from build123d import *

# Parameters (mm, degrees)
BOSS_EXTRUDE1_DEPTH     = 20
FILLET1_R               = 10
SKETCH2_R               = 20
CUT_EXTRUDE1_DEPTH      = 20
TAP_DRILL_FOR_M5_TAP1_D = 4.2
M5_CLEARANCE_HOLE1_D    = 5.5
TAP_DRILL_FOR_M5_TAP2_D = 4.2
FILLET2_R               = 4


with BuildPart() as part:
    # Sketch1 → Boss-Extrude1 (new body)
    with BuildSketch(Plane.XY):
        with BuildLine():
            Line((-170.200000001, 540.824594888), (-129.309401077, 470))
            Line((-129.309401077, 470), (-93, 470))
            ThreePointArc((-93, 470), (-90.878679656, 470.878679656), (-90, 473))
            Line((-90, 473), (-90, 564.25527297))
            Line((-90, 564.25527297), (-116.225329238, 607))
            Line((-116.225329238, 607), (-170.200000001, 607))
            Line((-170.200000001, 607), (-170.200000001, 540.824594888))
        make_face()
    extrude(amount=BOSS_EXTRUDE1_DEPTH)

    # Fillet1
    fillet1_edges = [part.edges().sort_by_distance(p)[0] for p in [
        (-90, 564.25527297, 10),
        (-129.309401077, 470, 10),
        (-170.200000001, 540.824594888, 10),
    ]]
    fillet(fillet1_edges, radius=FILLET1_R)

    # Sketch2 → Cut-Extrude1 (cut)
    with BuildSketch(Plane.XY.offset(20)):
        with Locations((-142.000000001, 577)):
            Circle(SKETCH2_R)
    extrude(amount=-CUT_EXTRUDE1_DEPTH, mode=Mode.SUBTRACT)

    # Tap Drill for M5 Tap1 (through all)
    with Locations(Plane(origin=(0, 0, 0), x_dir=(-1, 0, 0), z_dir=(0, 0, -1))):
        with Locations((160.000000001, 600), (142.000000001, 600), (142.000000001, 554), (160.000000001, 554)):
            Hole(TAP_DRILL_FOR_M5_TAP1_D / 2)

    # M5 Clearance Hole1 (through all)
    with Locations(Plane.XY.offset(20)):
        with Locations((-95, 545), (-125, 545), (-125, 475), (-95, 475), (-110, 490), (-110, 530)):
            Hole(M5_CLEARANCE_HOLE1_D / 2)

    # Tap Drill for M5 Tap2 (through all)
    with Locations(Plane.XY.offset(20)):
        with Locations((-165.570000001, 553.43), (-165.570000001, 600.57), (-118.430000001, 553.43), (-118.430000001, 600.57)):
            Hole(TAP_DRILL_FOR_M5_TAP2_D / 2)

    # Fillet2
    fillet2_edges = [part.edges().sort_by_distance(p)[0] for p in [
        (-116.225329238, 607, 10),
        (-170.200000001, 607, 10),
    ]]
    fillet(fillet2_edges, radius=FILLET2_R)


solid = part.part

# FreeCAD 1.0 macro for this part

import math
import FreeCAD as App
import Part
import Sketcher
Q = App.Units.Quantity


def edges_at(feature, points):
    """Names of the edges that pass closest to the given points."""
    edges = feature.Shape.Edges
    near = lambda p: min(range(len(edges)), key=lambda i: edges[i].distToShape(Part.Vertex(*p))[0])
    return sorted({f"Edge{near(p) + 1}" for p in points})

doc = App.newDocument("Part")
params = doc.addObject("Spreadsheet::Sheet", "Params")
for row, (alias, value) in enumerate([
    ("sketch1_radius", "3 mm"),
    ("pad1_length", "20 mm"),
    ("fillet_radius", "10 mm"),
    ("sketch2_diameter", "40 mm"),
    ("pocket1_length", "20 mm"),
    ("sketch3_diameter", "4.2 mm"),
    ("hole_diameter", "4.2 mm"),
    ("sketch4_diameter", "5.5 mm"),
    ("hole2_diameter", "5.5 mm"),
    ("sketch5_diameter", "4.2 mm"),
    ("hole3_diameter", "4.2 mm"),
    ("fillet2_radius", "4 mm"),
], start=1):
    params.set(f"A{row}", alias)
    params.set(f"B{row}", "=" + value)
    params.setAlias(f"B{row}", alias)

body = doc.addObject("PartDesign::Body", "Body")

sketch1 = body.newObject("Sketcher::SketchObject", "Sketch")
sketch1.AttachmentSupport = (doc.getObject("XY_Plane"), [""])
sketch1.MapMode = "FlatFace"
sketch1.addGeometry([
    Part.LineSegment(App.Vector(-170.2, 540.824595, 0), App.Vector(-129.309401, 470, 0)),
    Part.LineSegment(App.Vector(-129.309401, 470, 0), App.Vector(-93, 470, 0)),
    Part.ArcOfCircle(Part.Circle(App.Vector(-93, 473, 0), App.Vector(0, 0, 1), 3), math.radians(-90), math.radians(0)),
    Part.LineSegment(App.Vector(-90, 473, 0), App.Vector(-90, 564.255273, 0)),
    Part.LineSegment(App.Vector(-90, 564.255273, 0), App.Vector(-116.225329, 607, 0)),
    Part.LineSegment(App.Vector(-116.225329, 607, 0), App.Vector(-170.2, 607, 0)),
    Part.LineSegment(App.Vector(-170.2, 607, 0), App.Vector(-170.2, 540.824595, 0)),
], False)
sketch1.addConstraint([
    Sketcher.Constraint("Coincident", 0, 2, 1, 1),
    Sketcher.Constraint("Tangent", 1, 2, 2, 1),
    Sketcher.Constraint("Tangent", 2, 2, 3, 1),
    Sketcher.Constraint("Coincident", 3, 2, 4, 1),
    Sketcher.Constraint("Coincident", 4, 2, 5, 1),
    Sketcher.Constraint("Coincident", 5, 2, 6, 1),
    Sketcher.Constraint("Coincident", 6, 2, 0, 1),
    Sketcher.Constraint("Horizontal", 1),
    Sketcher.Constraint("Vertical", 3),
    Sketcher.Constraint("Horizontal", 5),
    Sketcher.Constraint("Vertical", 6),
    Sketcher.Constraint("Radius", 2, 3.0),
    Sketcher.Constraint("Angle", 0, Q("-60 deg")),
    Sketcher.Constraint("DistanceX", 2, 3, -1, 1, 93.0),
    Sketcher.Constraint("DistanceY", -1, 1, 2, 3, 473.0),
    Sketcher.Constraint("DistanceY", -1, 1, 4, 2, 607.0),
    Sketcher.Constraint("DistanceX", 5, 2, -1, 1, 170.2),
    Sketcher.Constraint("DistanceX", 1, 1, 1, 2, 36.309401),
    Sketcher.Constraint("DistanceX", 5, 2, 5, 1, 53.974671),
    Sketcher.Constraint("DistanceY", 3, 1, 3, 2, 91.255273),
])
sketch1.setExpression("Constraints[11]", "Params.sketch1_radius")
pad1 = body.newObject("PartDesign::Pad", "Pad")
pad1.Profile = sketch1
pad1.setExpression("Length", "Params.pad1_length")
doc.recompute()

fillet = body.newObject("PartDesign::Fillet", "Fillet")
fillet.Base = (pad1, edges_at(pad1, [(-90, 564.255, 10), (-129.309, 470, 10), (-170.2, 540.825, 10)]))
fillet.setExpression("Radius", "Params.fillet_radius")

sketch2 = body.newObject("Sketcher::SketchObject", "Sketch001")
sketch2.AttachmentSupport = (doc.getObject("XY_Plane"), [""])
sketch2.MapMode = "FlatFace"
sketch2.AttachmentOffset = App.Placement(App.Vector(0, 0, 20), App.Rotation())
sketch2.addGeometry(Part.Circle(App.Vector(-142, 577, 0), App.Vector(0, 0, 1), 20), False)
sketch2.addConstraint([
    Sketcher.Constraint("Diameter", 0, 40.0),
    Sketcher.Constraint("DistanceX", 0, 3, -1, 1, 142.0),
    Sketcher.Constraint("DistanceY", -1, 1, 0, 3, 577.0),
])
sketch2.setExpression("Constraints[0]", "Params.sketch2_diameter")
pocket1 = body.newObject("PartDesign::Pocket", "Pocket")
pocket1.Profile = sketch2
pocket1.setExpression("Length", "Params.pocket1_length")

sketch3 = body.newObject("Sketcher::SketchObject", "Sketch002")
sketch3.AttachmentSupport = (doc.getObject("XY_Plane"), [""])
sketch3.MapMode = "FlatFace"
sketch3.addGeometry([
    Part.Circle(App.Vector(-160, 600, 0), App.Vector(0, 0, 1), 2.1),
    Part.Circle(App.Vector(-142, 600, 0), App.Vector(0, 0, 1), 2.1),
    Part.Circle(App.Vector(-142, 554, 0), App.Vector(0, 0, 1), 2.1),
    Part.Circle(App.Vector(-160, 554, 0), App.Vector(0, 0, 1), 2.1),
], False)
sketch3.addConstraint([
    Sketcher.Constraint("Equal", 0, 1),
    Sketcher.Constraint("Equal", 1, 2),
    Sketcher.Constraint("Equal", 2, 3),
    Sketcher.Constraint("Horizontal", 0, 3, 1, 3),
    Sketcher.Constraint("Horizontal", 2, 3, 3, 3),
    Sketcher.Constraint("Vertical", 1, 3, 2, 3),
    Sketcher.Constraint("Vertical", 0, 3, 3, 3),
    Sketcher.Constraint("Diameter", 0, 4.2),
    Sketcher.Constraint("DistanceX", 0, 3, -1, 1, 160.0),
    Sketcher.Constraint("DistanceY", -1, 1, 0, 3, 600.0),
    Sketcher.Constraint("DistanceX", 1, 3, -1, 1, 142.0),
    Sketcher.Constraint("DistanceY", -1, 1, 2, 3, 554.0),
])
sketch3.setExpression("Constraints[7]", "Params.sketch3_diameter")
doc.recompute()
hole = body.newObject("PartDesign::Hole", "Hole")
hole.Profile = sketch3
hole.ThreadType = "None"
hole.setExpression("Diameter", "Params.hole_diameter")
hole.DepthType = "ThroughAll"
hole.Reversed = True

sketch4 = body.newObject("Sketcher::SketchObject", "Sketch003")
sketch4.AttachmentSupport = (doc.getObject("XY_Plane"), [""])
sketch4.MapMode = "FlatFace"
sketch4.AttachmentOffset = App.Placement(App.Vector(0, 0, 20), App.Rotation())
sketch4.addGeometry([
    Part.Circle(App.Vector(-95, 545, 0), App.Vector(0, 0, 1), 2.75),
    Part.Circle(App.Vector(-125, 545, 0), App.Vector(0, 0, 1), 2.75),
    Part.Circle(App.Vector(-125, 475, 0), App.Vector(0, 0, 1), 2.75),
    Part.Circle(App.Vector(-95, 475, 0), App.Vector(0, 0, 1), 2.75),
    Part.Circle(App.Vector(-110, 490, 0), App.Vector(0, 0, 1), 2.75),
    Part.Circle(App.Vector(-110, 530, 0), App.Vector(0, 0, 1), 2.75),
], False)
sketch4.addConstraint([
    Sketcher.Constraint("Equal", 0, 1),
    Sketcher.Constraint("Equal", 1, 2),
    Sketcher.Constraint("Equal", 2, 3),
    Sketcher.Constraint("Equal", 3, 4),
    Sketcher.Constraint("Equal", 4, 5),
    Sketcher.Constraint("Horizontal", 0, 3, 1, 3),
    Sketcher.Constraint("Horizontal", 2, 3, 3, 3),
    Sketcher.Constraint("Vertical", 1, 3, 2, 3),
    Sketcher.Constraint("Vertical", 0, 3, 3, 3),
    Sketcher.Constraint("Vertical", 4, 3, 5, 3),
    Sketcher.Constraint("Diameter", 0, 5.5),
    Sketcher.Constraint("DistanceX", 0, 3, -1, 1, 95.0),
    Sketcher.Constraint("DistanceY", -1, 1, 0, 3, 545.0),
    Sketcher.Constraint("DistanceX", 1, 3, -1, 1, 125.0),
    Sketcher.Constraint("DistanceY", -1, 1, 2, 3, 475.0),
    Sketcher.Constraint("DistanceX", 4, 3, -1, 1, 110.0),
    Sketcher.Constraint("DistanceY", -1, 1, 4, 3, 490.0),
    Sketcher.Constraint("DistanceY", -1, 1, 5, 3, 530.0),
])
sketch4.setExpression("Constraints[10]", "Params.sketch4_diameter")
doc.recompute()
hole2 = body.newObject("PartDesign::Hole", "Hole001")
hole2.Profile = sketch4
hole2.ThreadType = "None"
hole2.setExpression("Diameter", "Params.hole2_diameter")
hole2.DepthType = "ThroughAll"

sketch5 = body.newObject("Sketcher::SketchObject", "Sketch004")
sketch5.AttachmentSupport = (doc.getObject("XY_Plane"), [""])
sketch5.MapMode = "FlatFace"
sketch5.AttachmentOffset = App.Placement(App.Vector(0, 0, 20), App.Rotation())
sketch5.addGeometry([
    Part.Circle(App.Vector(-165.57, 553.43, 0), App.Vector(0, 0, 1), 2.1),
    Part.Circle(App.Vector(-165.57, 600.57, 0), App.Vector(0, 0, 1), 2.1),
    Part.Circle(App.Vector(-118.43, 553.43, 0), App.Vector(0, 0, 1), 2.1),
    Part.Circle(App.Vector(-118.43, 600.57, 0), App.Vector(0, 0, 1), 2.1),
], False)
sketch5.addConstraint([
    Sketcher.Constraint("Equal", 0, 1),
    Sketcher.Constraint("Equal", 1, 2),
    Sketcher.Constraint("Equal", 2, 3),
    Sketcher.Constraint("Horizontal", 0, 3, 2, 3),
    Sketcher.Constraint("Horizontal", 1, 3, 3, 3),
    Sketcher.Constraint("Vertical", 0, 3, 1, 3),
    Sketcher.Constraint("Vertical", 2, 3, 3, 3),
    Sketcher.Constraint("Diameter", 0, 4.2),
    Sketcher.Constraint("DistanceX", 0, 3, -1, 1, 165.57),
    Sketcher.Constraint("DistanceY", -1, 1, 0, 3, 553.43),
    Sketcher.Constraint("DistanceY", -1, 1, 1, 3, 600.57),
    Sketcher.Constraint("DistanceX", 2, 3, -1, 1, 118.43),
])
sketch5.setExpression("Constraints[7]", "Params.sketch5_diameter")
doc.recompute()
hole3 = body.newObject("PartDesign::Hole", "Hole002")
hole3.Profile = sketch5
hole3.ThreadType = "None"
hole3.setExpression("Diameter", "Params.hole3_diameter")
hole3.DepthType = "ThroughAll"
doc.recompute()

fillet2 = body.newObject("PartDesign::Fillet", "Fillet001")
fillet2.Base = (hole3, edges_at(hole3, [(-116.225, 607, 10), (-170.2, 607, 10)]))
fillet2.setExpression("Radius", "Params.fillet2_radius")

doc.recompute()
